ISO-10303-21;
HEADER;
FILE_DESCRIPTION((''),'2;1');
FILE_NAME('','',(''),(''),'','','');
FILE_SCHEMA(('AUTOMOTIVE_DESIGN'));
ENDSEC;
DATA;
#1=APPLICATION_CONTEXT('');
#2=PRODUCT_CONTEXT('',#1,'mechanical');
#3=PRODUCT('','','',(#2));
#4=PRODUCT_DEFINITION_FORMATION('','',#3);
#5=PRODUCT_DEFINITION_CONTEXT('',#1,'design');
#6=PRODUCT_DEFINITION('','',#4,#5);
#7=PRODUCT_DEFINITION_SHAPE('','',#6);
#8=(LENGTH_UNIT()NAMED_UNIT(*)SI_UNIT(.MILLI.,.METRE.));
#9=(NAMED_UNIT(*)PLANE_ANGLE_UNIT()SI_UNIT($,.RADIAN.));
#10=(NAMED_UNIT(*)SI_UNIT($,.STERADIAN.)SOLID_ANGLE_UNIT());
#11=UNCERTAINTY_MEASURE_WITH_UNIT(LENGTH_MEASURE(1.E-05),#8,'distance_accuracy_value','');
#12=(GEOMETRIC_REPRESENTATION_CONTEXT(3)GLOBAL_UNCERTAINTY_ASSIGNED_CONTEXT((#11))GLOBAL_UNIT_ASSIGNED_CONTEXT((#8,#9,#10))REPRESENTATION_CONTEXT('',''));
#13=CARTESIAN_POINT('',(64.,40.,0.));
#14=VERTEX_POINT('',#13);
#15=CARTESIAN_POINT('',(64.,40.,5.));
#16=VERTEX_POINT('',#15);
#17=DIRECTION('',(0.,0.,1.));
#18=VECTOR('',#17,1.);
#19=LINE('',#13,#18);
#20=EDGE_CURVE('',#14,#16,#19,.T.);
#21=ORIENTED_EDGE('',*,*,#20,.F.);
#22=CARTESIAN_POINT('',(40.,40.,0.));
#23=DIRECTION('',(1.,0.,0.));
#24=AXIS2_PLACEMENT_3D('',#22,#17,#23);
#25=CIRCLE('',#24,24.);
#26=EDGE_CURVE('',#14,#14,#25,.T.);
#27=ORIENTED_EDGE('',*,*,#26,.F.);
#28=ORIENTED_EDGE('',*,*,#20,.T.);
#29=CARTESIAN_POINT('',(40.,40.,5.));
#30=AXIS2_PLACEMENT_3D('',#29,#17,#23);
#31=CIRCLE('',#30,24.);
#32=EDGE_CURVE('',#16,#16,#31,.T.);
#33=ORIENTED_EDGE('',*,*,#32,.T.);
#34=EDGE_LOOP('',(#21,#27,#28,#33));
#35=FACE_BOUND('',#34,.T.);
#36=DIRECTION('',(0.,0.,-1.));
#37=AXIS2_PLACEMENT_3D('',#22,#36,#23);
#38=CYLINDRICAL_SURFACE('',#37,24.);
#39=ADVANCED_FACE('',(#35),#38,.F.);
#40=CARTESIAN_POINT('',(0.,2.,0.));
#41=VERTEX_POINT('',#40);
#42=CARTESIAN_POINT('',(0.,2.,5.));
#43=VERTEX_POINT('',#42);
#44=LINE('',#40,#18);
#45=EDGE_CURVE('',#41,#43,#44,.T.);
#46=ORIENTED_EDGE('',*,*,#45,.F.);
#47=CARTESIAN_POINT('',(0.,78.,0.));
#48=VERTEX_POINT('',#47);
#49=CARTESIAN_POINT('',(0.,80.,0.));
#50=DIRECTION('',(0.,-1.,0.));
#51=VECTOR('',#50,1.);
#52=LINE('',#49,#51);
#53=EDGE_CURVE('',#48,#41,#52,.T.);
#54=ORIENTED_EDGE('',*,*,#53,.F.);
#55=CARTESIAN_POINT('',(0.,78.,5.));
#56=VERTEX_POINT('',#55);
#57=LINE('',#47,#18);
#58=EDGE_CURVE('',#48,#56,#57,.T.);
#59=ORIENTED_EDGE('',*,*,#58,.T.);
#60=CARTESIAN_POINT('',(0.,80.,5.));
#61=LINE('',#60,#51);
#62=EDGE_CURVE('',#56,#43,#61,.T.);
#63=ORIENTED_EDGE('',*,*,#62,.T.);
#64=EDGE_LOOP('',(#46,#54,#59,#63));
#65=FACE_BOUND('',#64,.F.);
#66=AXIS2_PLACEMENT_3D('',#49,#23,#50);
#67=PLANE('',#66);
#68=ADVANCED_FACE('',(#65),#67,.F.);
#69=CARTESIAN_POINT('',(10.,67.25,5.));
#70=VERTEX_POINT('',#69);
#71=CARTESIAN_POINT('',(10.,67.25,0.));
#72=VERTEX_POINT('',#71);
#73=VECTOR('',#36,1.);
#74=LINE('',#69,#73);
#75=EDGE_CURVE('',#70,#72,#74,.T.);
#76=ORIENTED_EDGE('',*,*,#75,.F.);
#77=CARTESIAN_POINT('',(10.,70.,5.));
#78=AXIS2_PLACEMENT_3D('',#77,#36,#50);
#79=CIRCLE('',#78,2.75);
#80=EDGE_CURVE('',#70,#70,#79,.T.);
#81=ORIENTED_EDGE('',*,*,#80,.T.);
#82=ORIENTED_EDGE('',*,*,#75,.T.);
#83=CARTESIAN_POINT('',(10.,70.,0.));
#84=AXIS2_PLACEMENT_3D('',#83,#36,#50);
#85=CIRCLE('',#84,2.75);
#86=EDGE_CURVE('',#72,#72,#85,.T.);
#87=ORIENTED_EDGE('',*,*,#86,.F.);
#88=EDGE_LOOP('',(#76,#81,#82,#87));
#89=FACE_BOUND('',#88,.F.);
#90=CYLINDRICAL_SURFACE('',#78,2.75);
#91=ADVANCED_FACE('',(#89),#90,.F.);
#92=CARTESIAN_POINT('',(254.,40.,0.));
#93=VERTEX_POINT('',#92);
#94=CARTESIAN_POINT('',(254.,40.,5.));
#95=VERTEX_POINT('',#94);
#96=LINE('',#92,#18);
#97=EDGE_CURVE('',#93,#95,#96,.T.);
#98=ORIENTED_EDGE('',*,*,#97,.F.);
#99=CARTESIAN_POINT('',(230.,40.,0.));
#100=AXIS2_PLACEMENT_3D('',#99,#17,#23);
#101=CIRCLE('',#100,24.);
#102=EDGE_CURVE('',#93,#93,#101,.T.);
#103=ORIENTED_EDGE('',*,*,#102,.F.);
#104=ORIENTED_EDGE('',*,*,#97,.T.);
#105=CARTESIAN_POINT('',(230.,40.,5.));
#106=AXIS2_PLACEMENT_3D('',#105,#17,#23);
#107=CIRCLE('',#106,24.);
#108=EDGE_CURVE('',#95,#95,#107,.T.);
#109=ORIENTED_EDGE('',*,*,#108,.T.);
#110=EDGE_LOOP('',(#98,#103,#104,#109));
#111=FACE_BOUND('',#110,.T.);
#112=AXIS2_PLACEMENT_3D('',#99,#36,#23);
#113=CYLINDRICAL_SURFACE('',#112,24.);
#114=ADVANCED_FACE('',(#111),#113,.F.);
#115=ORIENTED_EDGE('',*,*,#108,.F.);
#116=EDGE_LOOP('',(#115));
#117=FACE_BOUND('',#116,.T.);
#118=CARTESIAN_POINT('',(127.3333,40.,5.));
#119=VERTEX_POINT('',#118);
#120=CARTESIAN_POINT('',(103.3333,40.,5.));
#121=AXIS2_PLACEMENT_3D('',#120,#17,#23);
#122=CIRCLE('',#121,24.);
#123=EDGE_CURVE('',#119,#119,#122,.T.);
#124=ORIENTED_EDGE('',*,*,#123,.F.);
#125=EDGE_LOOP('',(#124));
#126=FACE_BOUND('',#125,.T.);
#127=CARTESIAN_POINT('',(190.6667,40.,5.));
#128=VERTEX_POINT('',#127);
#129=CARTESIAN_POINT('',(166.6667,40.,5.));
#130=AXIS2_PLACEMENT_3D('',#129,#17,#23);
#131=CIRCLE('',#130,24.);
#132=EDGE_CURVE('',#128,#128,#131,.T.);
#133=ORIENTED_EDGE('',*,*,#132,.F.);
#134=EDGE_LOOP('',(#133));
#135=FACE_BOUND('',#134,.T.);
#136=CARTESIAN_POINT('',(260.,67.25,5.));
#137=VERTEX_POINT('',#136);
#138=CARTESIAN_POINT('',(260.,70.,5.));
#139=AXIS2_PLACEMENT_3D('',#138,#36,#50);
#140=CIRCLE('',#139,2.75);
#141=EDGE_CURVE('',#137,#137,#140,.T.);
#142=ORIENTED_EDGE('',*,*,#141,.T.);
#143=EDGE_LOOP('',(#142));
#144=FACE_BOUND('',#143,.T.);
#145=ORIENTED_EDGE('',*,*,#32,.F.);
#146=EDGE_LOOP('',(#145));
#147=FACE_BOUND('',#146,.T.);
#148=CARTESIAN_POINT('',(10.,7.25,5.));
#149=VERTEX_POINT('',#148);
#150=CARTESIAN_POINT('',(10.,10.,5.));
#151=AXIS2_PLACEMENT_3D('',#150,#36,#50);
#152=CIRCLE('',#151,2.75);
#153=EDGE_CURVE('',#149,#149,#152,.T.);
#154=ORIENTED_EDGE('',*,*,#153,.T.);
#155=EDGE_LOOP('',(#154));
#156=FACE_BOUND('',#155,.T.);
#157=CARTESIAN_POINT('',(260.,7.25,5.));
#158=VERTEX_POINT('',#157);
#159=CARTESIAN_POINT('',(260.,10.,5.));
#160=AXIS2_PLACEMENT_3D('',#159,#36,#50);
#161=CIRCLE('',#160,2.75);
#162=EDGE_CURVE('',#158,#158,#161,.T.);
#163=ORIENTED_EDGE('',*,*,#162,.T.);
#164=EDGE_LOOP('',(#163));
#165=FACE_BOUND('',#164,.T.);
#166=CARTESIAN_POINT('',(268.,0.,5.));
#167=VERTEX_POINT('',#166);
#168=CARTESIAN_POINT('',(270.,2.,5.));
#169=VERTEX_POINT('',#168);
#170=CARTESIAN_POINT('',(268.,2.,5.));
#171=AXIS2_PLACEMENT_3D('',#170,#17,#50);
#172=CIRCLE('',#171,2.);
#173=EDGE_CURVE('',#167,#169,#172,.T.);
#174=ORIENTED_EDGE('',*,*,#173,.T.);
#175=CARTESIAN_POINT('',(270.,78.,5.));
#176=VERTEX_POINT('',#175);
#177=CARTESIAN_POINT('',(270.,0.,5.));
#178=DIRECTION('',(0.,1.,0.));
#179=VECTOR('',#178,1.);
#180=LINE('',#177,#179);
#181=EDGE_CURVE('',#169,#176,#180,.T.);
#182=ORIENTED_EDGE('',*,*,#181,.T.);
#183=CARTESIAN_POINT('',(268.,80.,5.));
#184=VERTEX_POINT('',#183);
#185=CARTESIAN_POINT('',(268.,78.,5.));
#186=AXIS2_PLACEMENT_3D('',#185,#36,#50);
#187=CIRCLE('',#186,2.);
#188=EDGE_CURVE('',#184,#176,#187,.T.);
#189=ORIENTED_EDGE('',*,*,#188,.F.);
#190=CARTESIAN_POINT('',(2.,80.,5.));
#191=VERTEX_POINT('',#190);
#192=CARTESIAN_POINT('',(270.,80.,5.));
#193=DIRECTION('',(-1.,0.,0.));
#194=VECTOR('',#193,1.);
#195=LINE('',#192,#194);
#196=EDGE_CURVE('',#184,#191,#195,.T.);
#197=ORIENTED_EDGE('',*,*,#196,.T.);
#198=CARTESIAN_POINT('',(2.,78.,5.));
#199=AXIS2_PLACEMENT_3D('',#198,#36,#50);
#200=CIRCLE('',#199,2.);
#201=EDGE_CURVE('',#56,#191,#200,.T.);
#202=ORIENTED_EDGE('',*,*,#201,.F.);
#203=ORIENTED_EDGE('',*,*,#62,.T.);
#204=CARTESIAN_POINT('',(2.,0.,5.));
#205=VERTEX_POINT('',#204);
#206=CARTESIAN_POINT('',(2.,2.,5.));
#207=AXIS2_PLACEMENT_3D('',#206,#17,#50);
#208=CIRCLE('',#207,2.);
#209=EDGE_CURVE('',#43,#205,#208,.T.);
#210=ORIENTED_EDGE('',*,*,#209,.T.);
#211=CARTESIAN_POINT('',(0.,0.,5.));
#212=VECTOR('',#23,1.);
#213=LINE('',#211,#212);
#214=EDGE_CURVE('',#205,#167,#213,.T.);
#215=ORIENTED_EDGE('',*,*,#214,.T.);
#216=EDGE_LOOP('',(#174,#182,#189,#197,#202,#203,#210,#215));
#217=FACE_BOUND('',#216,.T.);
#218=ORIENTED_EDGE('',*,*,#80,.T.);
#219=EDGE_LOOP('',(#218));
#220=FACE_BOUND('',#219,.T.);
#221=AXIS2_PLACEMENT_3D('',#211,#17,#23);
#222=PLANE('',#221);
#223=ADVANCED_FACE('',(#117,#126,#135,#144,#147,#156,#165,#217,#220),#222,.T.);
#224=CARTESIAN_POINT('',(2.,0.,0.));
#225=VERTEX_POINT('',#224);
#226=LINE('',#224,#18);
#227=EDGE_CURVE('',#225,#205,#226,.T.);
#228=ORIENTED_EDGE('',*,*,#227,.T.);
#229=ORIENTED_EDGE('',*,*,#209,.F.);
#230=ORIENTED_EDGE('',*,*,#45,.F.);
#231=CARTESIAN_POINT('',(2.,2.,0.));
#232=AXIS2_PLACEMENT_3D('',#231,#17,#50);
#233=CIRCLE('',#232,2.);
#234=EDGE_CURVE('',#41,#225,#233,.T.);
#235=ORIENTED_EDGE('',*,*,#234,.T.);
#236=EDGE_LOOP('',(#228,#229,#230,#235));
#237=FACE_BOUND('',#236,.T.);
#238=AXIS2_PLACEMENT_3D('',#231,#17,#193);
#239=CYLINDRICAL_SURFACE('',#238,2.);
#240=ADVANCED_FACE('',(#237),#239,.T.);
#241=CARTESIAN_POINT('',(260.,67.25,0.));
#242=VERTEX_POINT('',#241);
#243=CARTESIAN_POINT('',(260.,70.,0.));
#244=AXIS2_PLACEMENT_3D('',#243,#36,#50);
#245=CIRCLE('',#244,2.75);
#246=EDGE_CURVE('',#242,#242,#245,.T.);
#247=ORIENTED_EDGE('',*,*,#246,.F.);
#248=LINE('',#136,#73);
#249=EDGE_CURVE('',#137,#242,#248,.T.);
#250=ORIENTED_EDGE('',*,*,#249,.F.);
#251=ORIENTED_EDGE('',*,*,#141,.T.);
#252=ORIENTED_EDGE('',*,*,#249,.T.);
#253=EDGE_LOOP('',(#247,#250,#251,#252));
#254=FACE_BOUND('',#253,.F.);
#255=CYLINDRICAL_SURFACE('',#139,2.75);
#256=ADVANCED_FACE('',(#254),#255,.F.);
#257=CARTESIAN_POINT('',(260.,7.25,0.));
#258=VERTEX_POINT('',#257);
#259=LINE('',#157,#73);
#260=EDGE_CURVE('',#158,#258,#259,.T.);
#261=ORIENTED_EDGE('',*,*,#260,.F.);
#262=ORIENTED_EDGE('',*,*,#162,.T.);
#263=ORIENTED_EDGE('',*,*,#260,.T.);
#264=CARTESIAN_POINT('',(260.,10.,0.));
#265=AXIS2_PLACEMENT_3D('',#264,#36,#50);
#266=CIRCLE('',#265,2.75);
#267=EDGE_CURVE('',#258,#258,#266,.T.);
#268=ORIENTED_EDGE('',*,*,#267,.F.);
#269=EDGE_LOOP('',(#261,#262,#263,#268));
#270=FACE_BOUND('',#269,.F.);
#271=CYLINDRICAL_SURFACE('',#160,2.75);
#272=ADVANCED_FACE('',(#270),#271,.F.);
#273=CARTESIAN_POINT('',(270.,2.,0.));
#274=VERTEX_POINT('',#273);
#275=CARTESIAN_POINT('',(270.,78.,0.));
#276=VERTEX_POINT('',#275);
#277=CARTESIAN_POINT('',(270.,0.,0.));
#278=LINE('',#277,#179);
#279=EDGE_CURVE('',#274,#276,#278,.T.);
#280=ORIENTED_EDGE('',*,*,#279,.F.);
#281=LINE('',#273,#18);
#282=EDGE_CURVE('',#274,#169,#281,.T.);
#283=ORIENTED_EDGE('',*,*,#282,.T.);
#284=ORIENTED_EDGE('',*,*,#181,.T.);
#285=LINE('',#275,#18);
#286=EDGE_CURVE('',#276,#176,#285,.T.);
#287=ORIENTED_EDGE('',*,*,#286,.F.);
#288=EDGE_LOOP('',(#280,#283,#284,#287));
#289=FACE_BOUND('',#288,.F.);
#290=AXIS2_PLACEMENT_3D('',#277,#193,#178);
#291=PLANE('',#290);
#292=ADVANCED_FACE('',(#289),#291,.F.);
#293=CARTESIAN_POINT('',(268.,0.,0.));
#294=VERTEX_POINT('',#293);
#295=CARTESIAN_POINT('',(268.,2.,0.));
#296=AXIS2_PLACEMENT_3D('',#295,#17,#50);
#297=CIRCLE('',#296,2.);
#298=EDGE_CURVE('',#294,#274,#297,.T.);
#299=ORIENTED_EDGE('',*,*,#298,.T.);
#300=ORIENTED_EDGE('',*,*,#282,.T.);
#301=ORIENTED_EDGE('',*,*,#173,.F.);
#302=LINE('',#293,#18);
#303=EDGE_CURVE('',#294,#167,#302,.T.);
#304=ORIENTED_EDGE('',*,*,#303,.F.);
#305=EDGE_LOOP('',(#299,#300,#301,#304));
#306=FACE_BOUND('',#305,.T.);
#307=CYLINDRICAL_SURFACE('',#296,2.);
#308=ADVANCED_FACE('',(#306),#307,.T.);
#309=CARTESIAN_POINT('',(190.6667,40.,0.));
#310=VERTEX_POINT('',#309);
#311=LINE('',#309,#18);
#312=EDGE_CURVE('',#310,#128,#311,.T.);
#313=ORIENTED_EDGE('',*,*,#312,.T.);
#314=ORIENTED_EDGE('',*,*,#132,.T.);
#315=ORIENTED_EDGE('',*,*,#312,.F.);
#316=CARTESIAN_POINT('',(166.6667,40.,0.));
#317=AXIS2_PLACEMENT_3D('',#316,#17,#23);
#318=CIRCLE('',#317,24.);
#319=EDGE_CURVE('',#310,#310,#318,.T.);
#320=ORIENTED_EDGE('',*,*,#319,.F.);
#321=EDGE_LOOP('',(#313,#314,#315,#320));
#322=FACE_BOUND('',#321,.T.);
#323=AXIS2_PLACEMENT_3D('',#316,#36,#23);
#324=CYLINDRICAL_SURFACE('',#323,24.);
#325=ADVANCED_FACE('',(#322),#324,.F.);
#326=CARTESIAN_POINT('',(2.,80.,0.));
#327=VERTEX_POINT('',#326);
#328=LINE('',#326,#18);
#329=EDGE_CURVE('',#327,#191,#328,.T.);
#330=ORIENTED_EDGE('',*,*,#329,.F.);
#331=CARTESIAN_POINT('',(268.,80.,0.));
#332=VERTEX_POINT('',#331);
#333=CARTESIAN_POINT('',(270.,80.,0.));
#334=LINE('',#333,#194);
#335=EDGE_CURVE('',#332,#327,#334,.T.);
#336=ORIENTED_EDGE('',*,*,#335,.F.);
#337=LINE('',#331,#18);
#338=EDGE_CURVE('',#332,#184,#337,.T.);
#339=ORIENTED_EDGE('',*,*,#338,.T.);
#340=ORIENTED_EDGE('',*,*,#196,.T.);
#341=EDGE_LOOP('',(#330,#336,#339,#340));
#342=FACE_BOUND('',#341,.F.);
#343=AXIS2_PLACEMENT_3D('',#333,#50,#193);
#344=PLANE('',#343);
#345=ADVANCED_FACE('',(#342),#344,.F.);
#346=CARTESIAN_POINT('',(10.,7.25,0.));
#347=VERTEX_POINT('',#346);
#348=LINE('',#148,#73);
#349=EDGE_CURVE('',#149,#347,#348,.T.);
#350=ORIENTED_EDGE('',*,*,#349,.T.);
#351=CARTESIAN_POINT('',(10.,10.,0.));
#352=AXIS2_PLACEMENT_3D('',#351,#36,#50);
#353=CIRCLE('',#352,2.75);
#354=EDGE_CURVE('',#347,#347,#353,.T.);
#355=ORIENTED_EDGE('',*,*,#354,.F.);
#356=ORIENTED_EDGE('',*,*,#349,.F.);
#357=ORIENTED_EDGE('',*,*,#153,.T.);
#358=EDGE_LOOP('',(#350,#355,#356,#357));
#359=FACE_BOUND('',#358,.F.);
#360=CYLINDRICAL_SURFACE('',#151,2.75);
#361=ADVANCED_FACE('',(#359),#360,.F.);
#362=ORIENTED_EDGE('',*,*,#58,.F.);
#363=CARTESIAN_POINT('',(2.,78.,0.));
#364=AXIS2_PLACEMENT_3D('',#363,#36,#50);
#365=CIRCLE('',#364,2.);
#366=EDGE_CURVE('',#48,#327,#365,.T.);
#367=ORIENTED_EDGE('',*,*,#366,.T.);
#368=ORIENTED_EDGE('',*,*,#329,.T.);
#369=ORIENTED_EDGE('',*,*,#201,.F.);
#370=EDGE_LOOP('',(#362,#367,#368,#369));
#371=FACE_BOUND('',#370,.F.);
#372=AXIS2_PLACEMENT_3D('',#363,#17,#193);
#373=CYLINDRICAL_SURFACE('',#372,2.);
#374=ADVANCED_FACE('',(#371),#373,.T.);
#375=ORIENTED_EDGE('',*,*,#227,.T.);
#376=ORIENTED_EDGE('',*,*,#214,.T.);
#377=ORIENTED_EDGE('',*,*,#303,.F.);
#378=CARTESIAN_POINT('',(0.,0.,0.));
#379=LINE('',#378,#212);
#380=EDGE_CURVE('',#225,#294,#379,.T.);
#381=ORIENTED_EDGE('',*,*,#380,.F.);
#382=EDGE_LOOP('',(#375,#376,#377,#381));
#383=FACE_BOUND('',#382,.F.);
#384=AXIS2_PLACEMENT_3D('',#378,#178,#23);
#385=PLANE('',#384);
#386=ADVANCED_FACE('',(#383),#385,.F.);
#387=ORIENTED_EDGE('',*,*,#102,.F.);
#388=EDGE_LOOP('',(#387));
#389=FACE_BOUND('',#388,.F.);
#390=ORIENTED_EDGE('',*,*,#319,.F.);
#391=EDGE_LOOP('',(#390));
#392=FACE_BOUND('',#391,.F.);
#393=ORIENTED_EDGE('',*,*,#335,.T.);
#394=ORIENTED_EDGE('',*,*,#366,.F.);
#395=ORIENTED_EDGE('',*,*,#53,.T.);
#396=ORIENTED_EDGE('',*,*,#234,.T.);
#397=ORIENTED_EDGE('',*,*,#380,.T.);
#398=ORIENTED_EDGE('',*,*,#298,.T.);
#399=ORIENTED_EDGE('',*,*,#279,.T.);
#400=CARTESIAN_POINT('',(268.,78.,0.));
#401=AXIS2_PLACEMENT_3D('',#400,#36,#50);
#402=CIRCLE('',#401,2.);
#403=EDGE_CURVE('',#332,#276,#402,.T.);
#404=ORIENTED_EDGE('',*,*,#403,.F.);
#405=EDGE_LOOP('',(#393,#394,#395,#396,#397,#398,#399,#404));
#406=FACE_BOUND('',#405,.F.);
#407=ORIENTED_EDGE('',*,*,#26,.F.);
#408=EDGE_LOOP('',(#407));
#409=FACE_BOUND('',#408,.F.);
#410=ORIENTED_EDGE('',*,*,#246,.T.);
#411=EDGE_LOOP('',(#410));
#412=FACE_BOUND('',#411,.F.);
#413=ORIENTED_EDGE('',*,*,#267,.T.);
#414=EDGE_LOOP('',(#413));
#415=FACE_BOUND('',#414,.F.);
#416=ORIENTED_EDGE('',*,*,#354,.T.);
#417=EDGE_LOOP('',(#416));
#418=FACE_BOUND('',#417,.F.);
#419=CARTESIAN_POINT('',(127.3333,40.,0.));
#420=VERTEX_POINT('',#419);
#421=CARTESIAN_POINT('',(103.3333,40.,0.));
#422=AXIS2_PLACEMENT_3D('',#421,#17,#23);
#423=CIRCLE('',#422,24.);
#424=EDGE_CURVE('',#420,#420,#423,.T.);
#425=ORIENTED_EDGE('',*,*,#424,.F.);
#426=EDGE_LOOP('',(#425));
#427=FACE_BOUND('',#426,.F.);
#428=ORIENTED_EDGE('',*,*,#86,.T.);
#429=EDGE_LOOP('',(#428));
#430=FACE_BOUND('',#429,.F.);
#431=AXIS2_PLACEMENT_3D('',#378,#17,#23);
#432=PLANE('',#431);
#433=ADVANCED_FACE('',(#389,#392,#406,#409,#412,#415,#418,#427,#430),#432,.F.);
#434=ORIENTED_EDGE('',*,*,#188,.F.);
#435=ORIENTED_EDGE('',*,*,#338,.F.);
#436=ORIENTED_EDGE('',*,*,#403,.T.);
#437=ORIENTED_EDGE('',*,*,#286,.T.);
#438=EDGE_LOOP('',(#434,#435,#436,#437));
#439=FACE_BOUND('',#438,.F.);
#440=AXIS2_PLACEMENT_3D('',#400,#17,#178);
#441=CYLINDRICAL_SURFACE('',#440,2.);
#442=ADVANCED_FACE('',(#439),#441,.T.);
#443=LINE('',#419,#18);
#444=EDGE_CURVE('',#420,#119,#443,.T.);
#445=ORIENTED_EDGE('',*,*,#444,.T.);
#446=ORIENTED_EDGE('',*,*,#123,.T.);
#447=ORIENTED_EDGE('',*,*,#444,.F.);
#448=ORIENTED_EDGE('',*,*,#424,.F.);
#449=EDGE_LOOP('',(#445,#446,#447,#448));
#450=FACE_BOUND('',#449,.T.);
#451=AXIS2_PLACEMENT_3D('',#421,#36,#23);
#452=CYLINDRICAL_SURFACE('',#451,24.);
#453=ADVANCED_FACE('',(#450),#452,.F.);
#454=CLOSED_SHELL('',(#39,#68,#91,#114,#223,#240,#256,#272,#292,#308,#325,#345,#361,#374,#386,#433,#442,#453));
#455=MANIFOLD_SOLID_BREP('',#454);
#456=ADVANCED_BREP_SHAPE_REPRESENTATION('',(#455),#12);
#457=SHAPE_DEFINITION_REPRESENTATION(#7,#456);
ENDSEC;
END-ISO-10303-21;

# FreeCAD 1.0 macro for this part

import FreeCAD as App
import Part
import Sketcher

V = App.Vector
Q = App.Units.Quantity


def edges_at(feature, points):
    """Names of the edges that pass closest to the given points."""
    edges = feature.Shape.Edges
    near = lambda p: min(range(len(edges)), key=lambda i: edges[i].distToShape(Part.Vertex(*p))[0])
    return sorted({f"Edge{near(p) + 1}" for p in points})

doc = App.newDocument("Part")
body = doc.addObject("PartDesign::Body", "Body")

sketch1 = doc.addObject("Sketcher::SketchObject", "Sketch")
body.addObject(sketch1)
sketch1.AttachmentSupport = (doc.XY_Plane, [""])
sketch1.MapMode = "FlatFace"
sketch1.addGeometry(Part.LineSegment(V(0, 80, 0), V(0, 0, 0)), False)
sketch1.addGeometry(Part.LineSegment(V(0, 0, 0), V(270, 0, 0)), False)
sketch1.addGeometry(Part.LineSegment(V(270, 0, 0), V(270, 80, 0)), False)
sketch1.addGeometry(Part.LineSegment(V(270, 80, 0), V(0, 80, 0)), False)
sketch1.addGeometry(Part.Circle(V(40, 40, 0), V(0, 0, 1), 24), False)
sketch1.addGeometry(Part.Circle(V(103, 40, 0), V(0, 0, 1), 24), False)
sketch1.addGeometry(Part.Circle(V(167, 40, 0), V(0, 0, 1), 24), False)
sketch1.addGeometry(Part.Circle(V(230, 40, 0), V(0, 0, 1), 24), False)
sketch1.addConstraint(Sketcher.Constraint("Coincident", 0, 2, 1, 1))
sketch1.addConstraint(Sketcher.Constraint("Coincident", 1, 2, 2, 1))
sketch1.addConstraint(Sketcher.Constraint("Coincident", 2, 2, 3, 1))
sketch1.addConstraint(Sketcher.Constraint("Coincident", 3, 2, 0, 1))
sketch1.addConstraint(Sketcher.Constraint("Vertical", 0))
sketch1.addConstraint(Sketcher.Constraint("Horizontal", 1))
sketch1.addConstraint(Sketcher.Constraint("Vertical", 2))
sketch1.addConstraint(Sketcher.Constraint("Horizontal", 3))
sketch1.addConstraint(Sketcher.Constraint("Coincident", 0, 2, -1, 1))
sketch1.addConstraint(Sketcher.Constraint("Equal", 4, 5))
sketch1.addConstraint(Sketcher.Constraint("Equal", 5, 6))
sketch1.addConstraint(Sketcher.Constraint("Equal", 6, 7))
sketch1.addConstraint(Sketcher.Constraint("Horizontal", 4, 3, 5, 3))
sketch1.addConstraint(Sketcher.Constraint("Horizontal", 5, 3, 6, 3))
sketch1.addConstraint(Sketcher.Constraint("Horizontal", 6, 3, 7, 3))
sketch1.addConstraint(Sketcher.Constraint("Diameter", 4, Q("48 mm")))
sketch1.addConstraint(Sketcher.Constraint("DistanceX", 1, 1, 1, 2, Q("270 mm")))
sketch1.addConstraint(Sketcher.Constraint("DistanceY", 0, 2, 0, 1, Q("80 mm")))
sketch1.addConstraint(Sketcher.Constraint("DistanceX", -1, 1, 4, 3, Q("40 mm")))
sketch1.addConstraint(Sketcher.Constraint("DistanceY", -1, 1, 4, 3, Q("40 mm")))
sketch1.addConstraint(Sketcher.Constraint("DistanceX", 7, 3, 1, 2, Q("40 mm")))
sketch1.addConstraint(Sketcher.Constraint("DistanceX", 4, 3, 5, 3, Q("63.3333 mm")))
sketch1.addConstraint(Sketcher.Constraint("DistanceX", 5, 3, 6, 3, Q("63.3334 mm")))
pad1 = doc.addObject("PartDesign::Pad", "Pad")
body.addObject(pad1)
pad1.Profile = sketch1
pad1.Length = 5

sketch2 = doc.addObject("Sketcher::SketchObject", "Sketch001")
body.addObject(sketch2)
sketch2.AttachmentSupport = (doc.XY_Plane, [""])
sketch2.MapMode = "FlatFace"
sketch2.AttachmentOffset = App.Placement(V(0, 0, 5), App.Rotation())
sketch2.addGeometry(Part.Circle(V(10, 70, 0), V(0, 0, 1), 2.8), False)
sketch2.addGeometry(Part.Circle(V(260, 70, 0), V(0, 0, 1), 2.8), False)
sketch2.addGeometry(Part.Circle(V(260, 10, 0), V(0, 0, 1), 2.8), False)
sketch2.addGeometry(Part.Circle(V(10, 10, 0), V(0, 0, 1), 2.8), False)
sketch2.addConstraint(Sketcher.Constraint("Equal", 0, 1))
sketch2.addConstraint(Sketcher.Constraint("Equal", 1, 2))
sketch2.addConstraint(Sketcher.Constraint("Equal", 2, 3))
sketch2.addConstraint(Sketcher.Constraint("Horizontal", 0, 3, 1, 3))
sketch2.addConstraint(Sketcher.Constraint("Horizontal", 2, 3, 3, 3))
sketch2.addConstraint(Sketcher.Constraint("Vertical", 1, 3, 2, 3))
sketch2.addConstraint(Sketcher.Constraint("Vertical", 0, 3, 3, 3))
sketch2.addConstraint(Sketcher.Constraint("Diameter", 0, Q("5.5 mm")))
sketch2.addConstraint(Sketcher.Constraint("DistanceX", -1, 1, 0, 3, Q("10 mm")))
sketch2.addConstraint(Sketcher.Constraint("DistanceY", -1, 1, 0, 3, Q("70 mm")))
sketch2.addConstraint(Sketcher.Constraint("DistanceX", -1, 1, 1, 3, Q("260 mm")))
sketch2.addConstraint(Sketcher.Constraint("DistanceY", -1, 1, 2, 3, Q("10 mm")))
doc.recompute()
hole = doc.addObject("PartDesign::Hole", "Hole")
body.addObject(hole)
hole.Profile = sketch2
hole.ThreadType = "None"
hole.Diameter = 5.5
hole.DepthType = "ThroughAll"
doc.recompute()

fillet = doc.addObject("PartDesign::Fillet", "Fillet")
body.addObject(fillet)
fillet.Base = (hole, edges_at(hole, [
    (0, 0, 2.5),
    (270, 0, 2.5),
    (270, 80, 2.5),
    (0, 80, 2.5),
]))
fillet.Radius = 2

doc.recompute()
